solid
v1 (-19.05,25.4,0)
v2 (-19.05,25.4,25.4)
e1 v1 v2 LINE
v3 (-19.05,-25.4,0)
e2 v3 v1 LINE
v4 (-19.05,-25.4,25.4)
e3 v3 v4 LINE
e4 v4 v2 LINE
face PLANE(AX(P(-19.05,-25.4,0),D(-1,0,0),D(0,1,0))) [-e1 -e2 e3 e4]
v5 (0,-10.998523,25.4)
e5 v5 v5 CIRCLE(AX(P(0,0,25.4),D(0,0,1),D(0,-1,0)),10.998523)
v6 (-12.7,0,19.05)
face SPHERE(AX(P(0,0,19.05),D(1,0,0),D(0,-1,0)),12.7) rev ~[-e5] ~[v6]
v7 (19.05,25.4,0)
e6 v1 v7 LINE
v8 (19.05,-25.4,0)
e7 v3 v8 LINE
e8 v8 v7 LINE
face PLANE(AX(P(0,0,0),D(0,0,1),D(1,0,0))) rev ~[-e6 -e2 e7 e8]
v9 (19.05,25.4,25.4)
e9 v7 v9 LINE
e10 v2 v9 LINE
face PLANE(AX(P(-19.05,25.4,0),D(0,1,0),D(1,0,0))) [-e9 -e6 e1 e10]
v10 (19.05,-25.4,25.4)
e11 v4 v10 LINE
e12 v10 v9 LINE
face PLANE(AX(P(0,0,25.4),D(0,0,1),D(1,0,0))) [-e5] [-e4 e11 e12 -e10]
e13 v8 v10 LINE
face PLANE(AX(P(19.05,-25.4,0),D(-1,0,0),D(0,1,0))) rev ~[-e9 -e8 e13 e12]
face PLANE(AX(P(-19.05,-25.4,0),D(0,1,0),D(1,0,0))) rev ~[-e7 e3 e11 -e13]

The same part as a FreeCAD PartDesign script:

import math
import FreeCAD as App
import Part
import Sketcher
from FreeCAD import Vector
Q = App.Units.Quantity


def add_polygon(sketch, points):
    """Adds a closed chain of lines whose ends are joined by coincident constraints."""
    first, n = sketch.GeometryCount, len(points)
    for a, b in zip(points, points[1:] + points[:1]):
        sketch.addGeometry(Part.LineSegment(App.Vector(*a, 0), App.Vector(*b, 0)), False)
    for i in range(n):
        sketch.addConstraint(Sketcher.Constraint("Coincident", first + i, 2, first + (i + 1) % n, 1))

doc = App.newDocument("Part")
body = doc.addObject("PartDesign::Body", "Body")

# Sketch on XY plane
sketch1 = doc.addObject("Sketcher::SketchObject", "Sketch")
body.addObject(sketch1)
sketch1.AttachmentSupport = (doc.XY_Plane, [""])
sketch1.MapMode = "FlatFace"
add_polygon(sketch1, [(-19, 25), (-19, -25), (19, -25), (19, 25)])  # lines 0-3
sketch1.addConstraint([
    Sketcher.Constraint("Vertical", 0),
    Sketcher.Constraint("Horizontal", 1),
    Sketcher.Constraint("Vertical", 2),
    Sketcher.Constraint("Horizontal", 3),
    Sketcher.Constraint("Symmetric", 0, 2, 2, 2, -1, 1),
    Sketcher.Constraint("DistanceY", 0, 2, 0, 1, Q("2 in")),
    Sketcher.Constraint("DistanceX", 1, 1, 1, 2, Q("1.5 in")),
])
pad1 = doc.addObject("PartDesign::Pad", "Pad")
body.addObject(pad1)
pad1.Profile = sketch1
pad1.Length = Q("1 in")

# Sketch on XY plane
sketch2 = doc.addObject("Sketcher::SketchObject", "Sketch001")
body.addObject(sketch2)
sketch2.AttachmentSupport = (doc.XY_Plane, [""])
sketch2.MapMode = "FlatFace"
sketch2.AttachmentOffset = App.Placement(Vector(0, 0, 0.75 * 25.4), App.Rotation())
sketch2.addGeometry([
    Part.ArcOfCircle(Part.Circle(Vector(0, 0, 0), Vector(0, 0, 1), 13), math.radians(180), math.radians(360)),
    Part.LineSegment(Vector(13, 0, 0), Vector(-13, 0, 0)),
], False)
sketch2.addConstraint([
    Sketcher.Constraint("Coincident", 0, 1, 1, 2),
    Sketcher.Constraint("Coincident", 1, 1, 0, 2),
    Sketcher.Constraint("Horizontal", 1),
    Sketcher.Constraint("Coincident", 0, 3, -1, 1),
    Sketcher.Constraint("PointOnObject", 0, 1, -1),
    Sketcher.Constraint("Radius", 0, Q("0.5 in")),
])
groove = doc.addObject("PartDesign::Groove", "Groove")
body.addObject(groove)
groove.Profile = sketch2
groove.ReferenceAxis = (sketch2, ["H_Axis"])
groove.Angle = 360

doc.recompute()
